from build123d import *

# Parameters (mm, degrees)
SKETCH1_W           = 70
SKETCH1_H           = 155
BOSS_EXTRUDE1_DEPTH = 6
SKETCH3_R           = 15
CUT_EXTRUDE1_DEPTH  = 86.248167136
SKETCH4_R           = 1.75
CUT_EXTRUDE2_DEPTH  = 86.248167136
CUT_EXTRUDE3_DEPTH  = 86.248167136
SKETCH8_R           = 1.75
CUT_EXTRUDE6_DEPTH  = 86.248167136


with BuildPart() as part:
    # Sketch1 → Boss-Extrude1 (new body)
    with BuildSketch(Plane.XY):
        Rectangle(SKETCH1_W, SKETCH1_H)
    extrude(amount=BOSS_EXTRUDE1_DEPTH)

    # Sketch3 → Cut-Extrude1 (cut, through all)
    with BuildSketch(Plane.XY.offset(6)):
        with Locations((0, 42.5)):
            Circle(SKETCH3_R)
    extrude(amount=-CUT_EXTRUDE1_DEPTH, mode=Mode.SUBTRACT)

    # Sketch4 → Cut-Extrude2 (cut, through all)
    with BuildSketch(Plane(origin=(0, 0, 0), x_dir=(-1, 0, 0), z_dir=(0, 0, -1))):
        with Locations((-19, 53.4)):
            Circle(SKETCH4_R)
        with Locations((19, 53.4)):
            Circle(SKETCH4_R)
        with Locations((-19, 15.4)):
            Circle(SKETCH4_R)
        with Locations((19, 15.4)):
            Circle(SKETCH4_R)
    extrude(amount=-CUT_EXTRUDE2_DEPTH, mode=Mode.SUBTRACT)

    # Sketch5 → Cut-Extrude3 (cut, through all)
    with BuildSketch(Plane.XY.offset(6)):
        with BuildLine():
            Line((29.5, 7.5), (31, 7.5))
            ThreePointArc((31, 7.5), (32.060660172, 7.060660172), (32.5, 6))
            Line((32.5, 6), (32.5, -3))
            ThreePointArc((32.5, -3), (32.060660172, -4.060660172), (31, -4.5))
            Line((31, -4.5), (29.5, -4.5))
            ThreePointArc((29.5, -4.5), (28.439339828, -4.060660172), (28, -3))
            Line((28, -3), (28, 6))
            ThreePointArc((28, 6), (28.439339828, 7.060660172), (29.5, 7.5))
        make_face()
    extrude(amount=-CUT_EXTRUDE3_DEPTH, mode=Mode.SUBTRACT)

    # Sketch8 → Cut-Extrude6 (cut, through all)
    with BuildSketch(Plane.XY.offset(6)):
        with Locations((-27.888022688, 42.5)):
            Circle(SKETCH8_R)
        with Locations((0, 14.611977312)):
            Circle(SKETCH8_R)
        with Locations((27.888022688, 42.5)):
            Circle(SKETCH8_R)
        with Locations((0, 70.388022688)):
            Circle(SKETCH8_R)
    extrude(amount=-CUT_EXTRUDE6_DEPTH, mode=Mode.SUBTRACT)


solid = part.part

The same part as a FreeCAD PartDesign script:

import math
import FreeCAD as App
import Part
import Sketcher


def add_polygon(sketch, points):
    """Adds a closed chain of lines whose ends are joined by coincident constraints."""
    first, n = sketch.GeometryCount, len(points)
    for a, b in zip(points, points[1:] + points[:1]):
        sketch.addGeometry(Part.LineSegment(App.Vector(*a, 0), App.Vector(*b, 0)), False)
    for i in range(n):
        sketch.addConstraint(Sketcher.Constraint("Coincident", first + i, 2, first + (i + 1) % n, 1))

doc = App.newDocument("Part")
body = doc.addObject("PartDesign::Body", "Body")

sketch1 = doc.addObject("Sketcher::SketchObject", "Sketch")
body.addObject(sketch1)
sketch1.AttachmentSupport = (doc.XY_Plane, [""])
sketch1.MapMode = "FlatFace"
add_polygon(sketch1, [(-35, 78), (-35, -78), (35, -78), (35, 78)])
sketch1.addConstraint([
    Sketcher.Constraint("Vertical", 0),
    Sketcher.Constraint("Horizontal", 1),
    Sketcher.Constraint("Vertical", 2),
    Sketcher.Constraint("Horizontal", 3),
    Sketcher.Constraint("Symmetric", 0, 2, 2, 2, -1, 1),
    Sketcher.Constraint("DistanceX", 1, 1, 1, 2, 70.0),
    Sketcher.Constraint("DistanceY", 0, 2, 0, 1, 155.0),
])
pad1 = doc.addObject("PartDesign::Pad", "Pad")
body.addObject(pad1)
pad1.Profile = sketch1
pad1.Length = 6

sketch2 = doc.addObject("Sketcher::SketchObject", "Sketch001")
body.addObject(sketch2)
sketch2.AttachmentSupport = (doc.XY_Plane, [""])
sketch2.MapMode = "FlatFace"
sketch2.AttachmentOffset = App.Placement(App.Vector(0, 0, 6), App.Rotation())
sketch2.addGeometry(Part.Circle(App.Vector(0, 42, 0), App.Vector(0, 0, 1), 15), False)
sketch2.addConstraint([
    Sketcher.Constraint("PointOnObject", 0, 3, -2),
    Sketcher.Constraint("Diameter", 0, 30.0),
    Sketcher.Constraint("DistanceY", -1, 1, 0, 3, 42.5),
])
pocket1 = doc.addObject("PartDesign::Pocket", "Pocket")
body.addObject(pocket1)
pocket1.Profile = sketch2
pocket1.Type = "ThroughAll"

sketch3 = doc.addObject("Sketcher::SketchObject", "Sketch002")
body.addObject(sketch3)
sketch3.AttachmentSupport = (doc.XY_Plane, [""])
sketch3.MapMode = "FlatFace"
sketch3.addGeometry([
    Part.Circle(App.Vector(19, 53.4, 0), App.Vector(0, 0, 1), 1.8),
    Part.Circle(App.Vector(-19, 53.4, 0), App.Vector(0, 0, 1), 1.8),
    Part.Circle(App.Vector(19, 15.4, 0), App.Vector(0, 0, 1), 1.8),
    Part.Circle(App.Vector(-19, 15.4, 0), App.Vector(0, 0, 1), 1.8),
], False)
sketch3.addConstraint([
    Sketcher.Constraint("Equal", 0, 1),
    Sketcher.Constraint("Equal", 1, 2),
    Sketcher.Constraint("Equal", 2, 3),
    Sketcher.Constraint("Symmetric", 0, 3, 1, 3, -2),
    Sketcher.Constraint("Symmetric", 2, 3, 3, 3, -2),
    Sketcher.Constraint("Vertical", 0, 3, 2, 3),
    Sketcher.Constraint("Diameter", 0, 3.5),
    Sketcher.Constraint("DistanceX", -1, 1, 0, 3, 19.0),
    Sketcher.Constraint("DistanceY", 2, 3, 0, 3, 38.0),
    Sketcher.Constraint("DistanceY", -1, 1, 0, 3, 53.4),
])
pocket2 = doc.addObject("PartDesign::Pocket", "Pocket001")
body.addObject(pocket2)
pocket2.Profile = sketch3
pocket2.Type = "ThroughAll"
pocket2.Reversed = True

sketch4 = doc.addObject("Sketcher::SketchObject", "Sketch003")
body.addObject(sketch4)
sketch4.AttachmentSupport = (doc.XY_Plane, [""])
sketch4.MapMode = "FlatFace"
sketch4.AttachmentOffset = App.Placement(App.Vector(0, 0, 6), App.Rotation())
sketch4.addGeometry([
    Part.LineSegment(App.Vector(31, 7.5, 0), App.Vector(29.5, 7.5, 0)),
    Part.ArcOfCircle(Part.Circle(App.Vector(29.5, 6, 0), App.Vector(0, 0, 1), 1.5), math.radians(90), math.radians(180)),
    Part.LineSegment(App.Vector(28, 6, 0), App.Vector(28, -3, 0)),
    Part.ArcOfCircle(Part.Circle(App.Vector(29.5, -3, 0), App.Vector(0, 0, 1), 1.5), math.radians(180), math.radians(270)),
    Part.LineSegment(App.Vector(29.5, -4.5, 0), App.Vector(31, -4.5, 0)),
    Part.ArcOfCircle(Part.Circle(App.Vector(31, -3, 0), App.Vector(0, 0, 1), 1.5), math.radians(-90), math.radians(0)),
    Part.LineSegment(App.Vector(32.5, -3, 0), App.Vector(32.5, 6, 0)),
    Part.ArcOfCircle(Part.Circle(App.Vector(31, 6, 0), App.Vector(0, 0, 1), 1.5), math.radians(0), math.radians(90)),
], False)
sketch4.addConstraint([
    Sketcher.Constraint("Tangent", 0, 2, 1, 1),
    Sketcher.Constraint("Tangent", 1, 2, 2, 1),
    Sketcher.Constraint("Tangent", 2, 2, 3, 1),
    Sketcher.Constraint("Tangent", 3, 2, 4, 1),
    Sketcher.Constraint("Tangent", 4, 2, 5, 1),
    Sketcher.Constraint("Tangent", 5, 2, 6, 1),
    Sketcher.Constraint("Tangent", 6, 2, 7, 1),
    Sketcher.Constraint("Tangent", 7, 2, 0, 1),
    Sketcher.Constraint("Horizontal", 0),
    Sketcher.Constraint("Vertical", 2),
    Sketcher.Constraint("Horizontal", 4),
    Sketcher.Constraint("Vertical", 6),
    Sketcher.Constraint("Equal", 1, 3),
    Sketcher.Constraint("Equal", 3, 5),
    Sketcher.Constraint("Equal", 5, 7),
    Sketcher.Constraint("Radius", 1, 1.5),
    Sketcher.Constraint("DistanceY", 2, 2, 2, 1, 9.0),
    Sketcher.Constraint("DistanceX", 0, 2, 0, 1, 1.5),
    Sketcher.Constraint("DistanceY", -1, 1, 1, 3, 6.0),
    Sketcher.Constraint("DistanceX", -1, 1, 5, 3, 31.0),
])
pocket3 = doc.addObject("PartDesign::Pocket", "Pocket002")
body.addObject(pocket3)
pocket3.Profile = sketch4
pocket3.Type = "ThroughAll"

sketch5 = doc.addObject("Sketcher::SketchObject", "Sketch004")
body.addObject(sketch5)
sketch5.AttachmentSupport = (doc.XY_Plane, [""])
sketch5.MapMode = "FlatFace"
sketch5.AttachmentOffset = App.Placement(App.Vector(0, 0, 6), App.Rotation())
sketch5.addGeometry([
    Part.Circle(App.Vector(-27.9, 42.5, 0), App.Vector(0, 0, 1), 1.8),
    Part.Circle(App.Vector(0, 14.6, 0), App.Vector(0, 0, 1), 1.8),
    Part.Circle(App.Vector(27.9, 42.5, 0), App.Vector(0, 0, 1), 1.8),
    Part.Circle(App.Vector(0, 70.4, 0), App.Vector(0, 0, 1), 1.8),
], False)
sketch5.addConstraint([
    Sketcher.Constraint("Equal", 0, 1),
    Sketcher.Constraint("Equal", 1, 2),
    Sketcher.Constraint("Equal", 2, 3),
    Sketcher.Constraint("Symmetric", 0, 3, 2, 3, -2),
    Sketcher.Constraint("PointOnObject", 1, 3, -2),
    Sketcher.Constraint("PointOnObject", 3, 3, -2),
    Sketcher.Constraint("Diameter", 0, 3.5),
    Sketcher.Constraint("DistanceY", -1, 1, 0, 3, 42.5),
    Sketcher.Constraint("DistanceX", 0, 3, -1, 1, 27.888023),
    Sketcher.Constraint("DistanceY", -1, 1, 1, 3, 14.611977),
    Sketcher.Constraint("DistanceY", -1, 1, 3, 3, 70.388023),
])
pocket4 = doc.addObject("PartDesign::Pocket", "Pocket003")
body.addObject(pocket4)
pocket4.Profile = sketch5
pocket4.Type = "ThroughAll"

doc.recompute()
